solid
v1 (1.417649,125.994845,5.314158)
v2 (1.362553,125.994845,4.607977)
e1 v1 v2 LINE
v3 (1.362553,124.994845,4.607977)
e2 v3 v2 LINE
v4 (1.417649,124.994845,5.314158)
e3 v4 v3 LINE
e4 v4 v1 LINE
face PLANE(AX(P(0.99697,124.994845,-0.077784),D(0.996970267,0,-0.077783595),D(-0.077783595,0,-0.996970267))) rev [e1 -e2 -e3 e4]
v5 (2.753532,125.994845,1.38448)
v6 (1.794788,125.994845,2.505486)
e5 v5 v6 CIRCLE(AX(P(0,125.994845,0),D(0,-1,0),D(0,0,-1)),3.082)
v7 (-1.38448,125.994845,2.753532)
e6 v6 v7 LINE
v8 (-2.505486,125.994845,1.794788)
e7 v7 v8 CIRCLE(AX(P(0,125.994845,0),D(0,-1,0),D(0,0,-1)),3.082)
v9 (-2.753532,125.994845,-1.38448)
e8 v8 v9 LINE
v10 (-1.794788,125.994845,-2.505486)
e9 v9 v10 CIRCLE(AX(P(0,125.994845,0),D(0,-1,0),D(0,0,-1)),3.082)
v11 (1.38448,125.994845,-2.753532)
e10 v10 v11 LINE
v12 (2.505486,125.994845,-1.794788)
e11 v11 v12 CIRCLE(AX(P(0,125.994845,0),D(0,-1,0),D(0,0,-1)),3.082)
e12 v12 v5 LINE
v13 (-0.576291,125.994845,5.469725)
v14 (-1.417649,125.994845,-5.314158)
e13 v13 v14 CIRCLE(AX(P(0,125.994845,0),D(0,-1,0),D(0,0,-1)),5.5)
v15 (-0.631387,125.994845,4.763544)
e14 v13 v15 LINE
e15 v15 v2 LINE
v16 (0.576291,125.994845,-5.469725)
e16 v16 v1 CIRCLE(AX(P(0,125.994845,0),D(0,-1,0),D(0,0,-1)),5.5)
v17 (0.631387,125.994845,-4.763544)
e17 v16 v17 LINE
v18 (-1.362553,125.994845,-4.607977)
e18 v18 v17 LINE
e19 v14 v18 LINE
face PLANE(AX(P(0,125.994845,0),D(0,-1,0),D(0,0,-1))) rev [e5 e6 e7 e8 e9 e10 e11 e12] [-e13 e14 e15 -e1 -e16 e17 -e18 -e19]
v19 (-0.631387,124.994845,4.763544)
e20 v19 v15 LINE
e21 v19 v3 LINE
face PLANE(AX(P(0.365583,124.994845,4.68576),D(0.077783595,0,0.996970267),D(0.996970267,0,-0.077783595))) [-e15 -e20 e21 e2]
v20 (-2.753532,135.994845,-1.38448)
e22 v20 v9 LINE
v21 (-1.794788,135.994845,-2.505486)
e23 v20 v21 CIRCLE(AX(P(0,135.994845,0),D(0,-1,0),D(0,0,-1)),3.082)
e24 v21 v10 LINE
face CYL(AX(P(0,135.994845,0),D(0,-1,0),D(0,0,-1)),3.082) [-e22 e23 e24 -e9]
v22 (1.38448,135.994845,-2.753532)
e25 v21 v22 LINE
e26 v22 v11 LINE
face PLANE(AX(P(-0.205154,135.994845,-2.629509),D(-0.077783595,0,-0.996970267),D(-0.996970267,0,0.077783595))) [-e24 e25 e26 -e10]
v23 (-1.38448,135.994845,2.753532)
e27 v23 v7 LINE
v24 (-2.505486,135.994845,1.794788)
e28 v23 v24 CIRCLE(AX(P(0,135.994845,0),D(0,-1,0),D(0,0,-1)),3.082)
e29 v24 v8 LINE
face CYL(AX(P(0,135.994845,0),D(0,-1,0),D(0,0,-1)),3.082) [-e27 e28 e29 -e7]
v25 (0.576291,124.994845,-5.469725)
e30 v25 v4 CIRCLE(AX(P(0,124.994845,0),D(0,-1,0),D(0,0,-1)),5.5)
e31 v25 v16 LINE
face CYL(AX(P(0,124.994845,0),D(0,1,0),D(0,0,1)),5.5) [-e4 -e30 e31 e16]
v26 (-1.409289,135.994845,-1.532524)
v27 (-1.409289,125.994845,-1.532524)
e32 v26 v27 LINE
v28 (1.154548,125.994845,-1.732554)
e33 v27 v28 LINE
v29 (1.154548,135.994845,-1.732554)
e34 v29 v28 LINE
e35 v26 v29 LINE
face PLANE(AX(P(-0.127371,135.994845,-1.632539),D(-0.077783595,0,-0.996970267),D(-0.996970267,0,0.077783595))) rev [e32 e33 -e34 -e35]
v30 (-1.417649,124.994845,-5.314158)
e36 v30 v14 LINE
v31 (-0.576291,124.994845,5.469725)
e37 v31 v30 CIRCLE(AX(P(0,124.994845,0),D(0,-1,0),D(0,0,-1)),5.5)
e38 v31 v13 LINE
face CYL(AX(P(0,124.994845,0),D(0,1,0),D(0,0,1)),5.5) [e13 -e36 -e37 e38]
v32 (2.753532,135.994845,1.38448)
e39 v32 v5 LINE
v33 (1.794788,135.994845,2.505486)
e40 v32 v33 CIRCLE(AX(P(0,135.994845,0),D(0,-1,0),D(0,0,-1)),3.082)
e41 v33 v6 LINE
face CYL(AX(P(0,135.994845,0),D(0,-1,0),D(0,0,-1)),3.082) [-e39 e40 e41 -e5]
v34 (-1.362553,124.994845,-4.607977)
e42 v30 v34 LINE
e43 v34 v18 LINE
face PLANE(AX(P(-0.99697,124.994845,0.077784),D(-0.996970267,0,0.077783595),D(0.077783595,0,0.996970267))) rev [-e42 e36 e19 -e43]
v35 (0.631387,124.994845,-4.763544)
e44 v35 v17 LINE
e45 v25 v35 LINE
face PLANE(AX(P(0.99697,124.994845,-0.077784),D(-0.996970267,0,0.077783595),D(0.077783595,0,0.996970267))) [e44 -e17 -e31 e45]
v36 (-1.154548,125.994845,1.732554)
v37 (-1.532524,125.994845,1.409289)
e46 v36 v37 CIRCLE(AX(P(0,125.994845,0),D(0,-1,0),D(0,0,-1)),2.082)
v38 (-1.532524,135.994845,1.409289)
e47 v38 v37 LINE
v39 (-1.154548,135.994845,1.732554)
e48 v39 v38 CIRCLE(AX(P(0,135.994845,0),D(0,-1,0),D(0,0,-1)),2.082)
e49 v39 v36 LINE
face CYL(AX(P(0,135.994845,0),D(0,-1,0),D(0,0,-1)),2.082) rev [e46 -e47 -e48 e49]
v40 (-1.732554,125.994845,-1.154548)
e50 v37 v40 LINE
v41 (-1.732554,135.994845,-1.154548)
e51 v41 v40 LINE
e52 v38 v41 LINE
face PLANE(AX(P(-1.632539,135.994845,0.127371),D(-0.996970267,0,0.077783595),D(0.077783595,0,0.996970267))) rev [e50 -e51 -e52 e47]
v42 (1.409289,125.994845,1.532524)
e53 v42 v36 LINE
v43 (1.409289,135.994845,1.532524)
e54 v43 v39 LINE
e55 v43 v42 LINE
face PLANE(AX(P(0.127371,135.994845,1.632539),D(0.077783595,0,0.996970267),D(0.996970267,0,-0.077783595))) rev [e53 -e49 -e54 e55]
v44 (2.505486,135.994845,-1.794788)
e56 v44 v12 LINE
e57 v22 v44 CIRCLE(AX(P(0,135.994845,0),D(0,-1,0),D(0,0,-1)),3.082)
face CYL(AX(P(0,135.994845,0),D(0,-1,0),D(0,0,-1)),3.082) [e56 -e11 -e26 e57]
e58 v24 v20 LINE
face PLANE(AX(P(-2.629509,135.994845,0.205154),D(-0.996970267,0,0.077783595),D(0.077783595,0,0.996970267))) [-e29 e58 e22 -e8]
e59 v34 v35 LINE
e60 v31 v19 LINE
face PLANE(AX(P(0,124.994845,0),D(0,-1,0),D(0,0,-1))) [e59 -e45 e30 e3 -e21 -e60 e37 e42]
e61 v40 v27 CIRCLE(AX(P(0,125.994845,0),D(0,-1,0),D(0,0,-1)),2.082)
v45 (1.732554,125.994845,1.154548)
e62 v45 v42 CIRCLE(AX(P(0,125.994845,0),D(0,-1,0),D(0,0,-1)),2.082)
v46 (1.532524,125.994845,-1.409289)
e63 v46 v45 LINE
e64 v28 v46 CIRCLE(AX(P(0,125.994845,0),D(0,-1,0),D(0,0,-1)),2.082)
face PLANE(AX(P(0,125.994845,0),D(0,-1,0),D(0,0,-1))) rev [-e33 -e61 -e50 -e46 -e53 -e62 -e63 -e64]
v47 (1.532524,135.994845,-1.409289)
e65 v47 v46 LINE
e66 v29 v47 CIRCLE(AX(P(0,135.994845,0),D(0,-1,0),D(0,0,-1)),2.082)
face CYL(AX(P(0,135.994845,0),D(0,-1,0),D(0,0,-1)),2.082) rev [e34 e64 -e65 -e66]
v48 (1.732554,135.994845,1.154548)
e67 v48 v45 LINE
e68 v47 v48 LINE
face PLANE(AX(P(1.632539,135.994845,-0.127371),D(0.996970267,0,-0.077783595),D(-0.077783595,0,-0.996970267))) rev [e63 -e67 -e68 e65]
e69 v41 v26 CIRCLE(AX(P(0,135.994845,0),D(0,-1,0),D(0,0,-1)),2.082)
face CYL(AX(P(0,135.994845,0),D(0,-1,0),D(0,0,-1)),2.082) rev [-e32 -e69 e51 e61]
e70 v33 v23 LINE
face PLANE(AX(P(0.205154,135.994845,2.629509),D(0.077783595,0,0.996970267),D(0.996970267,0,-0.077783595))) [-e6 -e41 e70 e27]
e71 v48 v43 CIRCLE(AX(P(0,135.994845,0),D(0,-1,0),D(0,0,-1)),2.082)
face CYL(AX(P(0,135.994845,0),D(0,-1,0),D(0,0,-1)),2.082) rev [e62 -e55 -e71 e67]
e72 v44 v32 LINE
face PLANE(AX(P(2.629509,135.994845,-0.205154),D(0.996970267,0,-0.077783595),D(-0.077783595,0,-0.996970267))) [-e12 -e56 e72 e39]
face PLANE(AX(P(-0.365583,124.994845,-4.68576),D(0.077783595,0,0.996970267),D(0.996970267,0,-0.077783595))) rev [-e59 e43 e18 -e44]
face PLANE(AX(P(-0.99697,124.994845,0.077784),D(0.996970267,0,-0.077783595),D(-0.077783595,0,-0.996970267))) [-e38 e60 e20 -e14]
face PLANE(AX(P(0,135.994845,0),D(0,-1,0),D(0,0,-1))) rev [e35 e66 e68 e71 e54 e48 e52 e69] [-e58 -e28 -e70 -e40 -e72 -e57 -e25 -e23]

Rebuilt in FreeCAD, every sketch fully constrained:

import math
import FreeCAD as App
import Part
import Sketcher
from FreeCAD import Vector

doc = App.newDocument("Part")
body = doc.addObject("PartDesign::Body", "Body")

sketch1 = doc.addObject("Sketcher::SketchObject", "Sketch")
body.addObject(sketch1)
sketch1.AttachmentSupport = (doc.XZ_Plane, [""])
sketch1.MapMode = "FlatFace"
sketch1.AttachmentOffset = App.Placement(Vector(0, 0, -125.994845), App.Rotation())
sketch1.addGeometry(Part.LineSegment(Vector(-0.6, 4.8, 0), Vector(-0.6, 5.5, 0)), False)
sketch1.addGeometry(Part.ArcOfCircle(Part.Circle(Vector(0, 0, 0), Vector(0, 0, 1), 5.5), math.radians(96), math.radians(255)), False)
sketch1.addGeometry(Part.LineSegment(Vector(-1.4, -5.3, 0), Vector(-1.4, -4.6, 0)), False)
sketch1.addGeometry(Part.LineSegment(Vector(-1.4, -4.6, 0), Vector(0.6, -4.8, 0)), False)
sketch1.addGeometry(Part.LineSegment(Vector(0.6, -4.8, 0), Vector(0.6, -5.5, 0)), False)
sketch1.addGeometry(Part.ArcOfCircle(Part.Circle(Vector(0, 0, 0), Vector(0, 0, 1), 5.5), math.radians(-84), math.radians(0)), False)
sketch1.addGeometry(Part.ArcOfCircle(Part.Circle(Vector(0, 0, 0), Vector(0, 0, 1), 5.5), math.radians(0), math.radians(75)), False)
sketch1.addGeometry(Part.LineSegment(Vector(1.4, 5.3, 0), Vector(1.4, 4.6, 0)), False)
sketch1.addGeometry(Part.LineSegment(Vector(1.4, 4.6, 0), Vector(-0.6, 4.8, 0)), False)
sketch1.addConstraint(Sketcher.Constraint("Coincident", 0, 2, 1, 1))
sketch1.addConstraint(Sketcher.Constraint("Coincident", 1, 2, 2, 1))
sketch1.addConstraint(Sketcher.Constraint("Coincident", 2, 2, 3, 1))
sketch1.addConstraint(Sketcher.Constraint("Coincident", 3, 2, 4, 1))
sketch1.addConstraint(Sketcher.Constraint("Coincident", 4, 2, 5, 1))
sketch1.addConstraint(Sketcher.Constraint("Tangent", 5, 2, 6, 1))
sketch1.addConstraint(Sketcher.Constraint("Coincident", 6, 2, 7, 1))
sketch1.addConstraint(Sketcher.Constraint("Coincident", 7, 2, 8, 1))
sketch1.addConstraint(Sketcher.Constraint("Coincident", 8, 2, 0, 1))
sketch1.addConstraint(Sketcher.Constraint("Coincident", 1, 3, -1, 1))
sketch1.addConstraint(Sketcher.Constraint("Coincident", 5, 3, -1, 1))
sketch1.addConstraint(Sketcher.Constraint("Equal", 1, 5))
sketch1.addConstraint(Sketcher.Constraint("Equal", 5, 6))
sketch1.addConstraint(Sketcher.Constraint("Symmetric", 2, 2, 7, 2, -1, 1))
sketch1.addConstraint(Sketcher.Constraint("Symmetric", 3, 2, 8, 2, -1, 1))
sketch1.addConstraint(Sketcher.Constraint("Parallel", 0, 2))
sketch1.addConstraint(Sketcher.Constraint("Perpendicular", 2, 3))
sketch1.addConstraint(Sketcher.Constraint("Perpendicular", 3, 4))
sketch1.addConstraint(Sketcher.Constraint("Parallel", 4, 7))
sketch1.addConstraint(Sketcher.Constraint("Equal", 0, 2))
sketch1.addConstraint(Sketcher.Constraint("Radius", 1, 5.5))
sketch1.addConstraint(Sketcher.Constraint("Distance", 3, 2.0))
sketch1.addConstraint(Sketcher.Constraint("DistanceY", 2, 2, 0, 2, 10.077701))
sketch1.addConstraint(Sketcher.Constraint("DistanceY", 3, 2, 5, 2, 4.778898))
sketch1.addConstraint(Sketcher.Constraint("DistanceX", 0, 2, -1, 1, 0.576291))
pad1 = doc.addObject("PartDesign::Pad", "Pad")
body.addObject(pad1)
pad1.Profile = sketch1
pad1.Length = 1

sketch2 = doc.addObject("Sketcher::SketchObject", "Sketch001")
body.addObject(sketch2)
sketch2.AttachmentSupport = (doc.XZ_Plane, [""])
sketch2.MapMode = "FlatFace"
sketch2.AttachmentOffset = App.Placement(Vector(0, 0, -125.994845), App.Rotation())
sketch2.addGeometry(Part.LineSegment(Vector(-2.63, 0.21, 0), Vector(-2.75, -1.38, 0)), False)
sketch2.addGeometry(Part.ArcOfCircle(Part.Circle(Vector(0, 0, 0), Vector(0, 0, 1), 3.08), math.radians(-153), math.radians(-126)), False)
sketch2.addGeometry(Part.LineSegment(Vector(-1.79, -2.51, 0), Vector(1.38, -2.75, 0)), False)
sketch2.addGeometry(Part.ArcOfCircle(Part.Circle(Vector(0, 0, 0), Vector(0, 0, 1), 3.08), math.radians(-63), math.radians(-36)), False)
sketch2.addGeometry(Part.LineSegment(Vector(2.51, -1.79, 0), Vector(2.63, -0.21, 0)), False)
sketch2.addGeometry(Part.LineSegment(Vector(2.63, -0.21, 0), Vector(2.75, 1.38, 0)), False)
sketch2.addGeometry(Part.ArcOfCircle(Part.Circle(Vector(0, 0, 0), Vector(0, 0, 1), 3.08), math.radians(27), math.radians(54)), False)
sketch2.addGeometry(Part.LineSegment(Vector(1.79, 2.51, 0), Vector(-1.38, 2.75, 0)), False)
sketch2.addGeometry(Part.ArcOfCircle(Part.Circle(Vector(0, 0, 0), Vector(0, 0, 1), 3.08), math.radians(117), math.radians(144)), False)
sketch2.addGeometry(Part.LineSegment(Vector(-2.51, 1.79, 0), Vector(-2.63, 0.21, 0)), False)
sketch2.addGeometry(Part.ArcOfCircle(Part.Circle(Vector(0, 0, 0), Vector(0, 0, 1), 2.08), math.radians(-56.32), math.radians(-42.6)), False)
sketch2.addGeometry(Part.LineSegment(Vector(1.15, -1.73, 0), Vector(-1.41, -1.53, 0)), False)
sketch2.addGeometry(Part.ArcOfCircle(Part.Circle(Vector(0, 0, 0), Vector(0, 0, 1), 2.08), math.radians(-146.32), math.radians(-132.6)), False)
sketch2.addGeometry(Part.LineSegment(Vector(-1.73, -1.15, 0), Vector(-1.63, 0.13, 0)), False)
sketch2.addGeometry(Part.LineSegment(Vector(-1.63, 0.13, 0), Vector(-1.53, 1.41, 0)), False)
sketch2.addGeometry(Part.ArcOfCircle(Part.Circle(Vector(0, 0, 0), Vector(0, 0, 1), 2.08), math.radians(123.68), math.radians(137.4)), False)
sketch2.addGeometry(Part.LineSegment(Vector(-1.15, 1.73, 0), Vector(1.41, 1.53, 0)), False)
sketch2.addGeometry(Part.ArcOfCircle(Part.Circle(Vector(0, 0, 0), Vector(0, 0, 1), 2.08), math.radians(33.68), math.radians(47.4)), False)
sketch2.addGeometry(Part.LineSegment(Vector(1.73, 1.15, 0), Vector(1.63, -0.13, 0)), False)
sketch2.addGeometry(Part.LineSegment(Vector(1.63, -0.13, 0), Vector(1.53, -1.41, 0)), False)
sketch2.addConstraint(Sketcher.Constraint("Coincident", 0, 2, 1, 1))
sketch2.addConstraint(Sketcher.Constraint("Coincident", 1, 2, 2, 1))
sketch2.addConstraint(Sketcher.Constraint("Coincident", 2, 2, 3, 1))
sketch2.addConstraint(Sketcher.Constraint("Coincident", 3, 2, 4, 1))
sketch2.addConstraint(Sketcher.Constraint("Coincident", 4, 2, 5, 1))
sketch2.addConstraint(Sketcher.Constraint("Coincident", 5, 2, 6, 1))
sketch2.addConstraint(Sketcher.Constraint("Coincident", 6, 2, 7, 1))
sketch2.addConstraint(Sketcher.Constraint("Coincident", 7, 2, 8, 1))
sketch2.addConstraint(Sketcher.Constraint("Coincident", 8, 2, 9, 1))
sketch2.addConstraint(Sketcher.Constraint("Coincident", 9, 2, 0, 1))
sketch2.addConstraint(Sketcher.Constraint("Coincident", 10, 1, 11, 1))
sketch2.addConstraint(Sketcher.Constraint("Coincident", 11, 2, 12, 2))
sketch2.addConstraint(Sketcher.Constraint("Coincident", 12, 1, 13, 1))
sketch2.addConstraint(Sketcher.Constraint("Coincident", 13, 2, 14, 1))
sketch2.addConstraint(Sketcher.Constraint("Coincident", 14, 2, 15, 2))
sketch2.addConstraint(Sketcher.Constraint("Coincident", 15, 1, 16, 1))
sketch2.addConstraint(Sketcher.Constraint("Coincident", 16, 2, 17, 2))
sketch2.addConstraint(Sketcher.Constraint("Coincident", 17, 1, 18, 1))
sketch2.addConstraint(Sketcher.Constraint("Coincident", 18, 2, 19, 1))
sketch2.addConstraint(Sketcher.Constraint("Coincident", 19, 2, 10, 2))
sketch2.addConstraint(Sketcher.Constraint("Coincident", 1, 3, -1, 1))
sketch2.addConstraint(Sketcher.Constraint("Coincident", 3, 3, -1, 1))
sketch2.addConstraint(Sketcher.Constraint("Coincident", 6, 3, -1, 1))
sketch2.addConstraint(Sketcher.Constraint("Coincident", 8, 3, -1, 1))
sketch2.addConstraint(Sketcher.Constraint("Coincident", 10, 3, -1, 1))
sketch2.addConstraint(Sketcher.Constraint("Coincident", 12, 3, -1, 1))
sketch2.addConstraint(Sketcher.Constraint("Coincident", 15, 3, -1, 1))
sketch2.addConstraint(Sketcher.Constraint("Coincident", 17, 3, -1, 1))
sketch2.addConstraint(Sketcher.Constraint("Equal", 1, 3))
sketch2.addConstraint(Sketcher.Constraint("Equal", 3, 6))
sketch2.addConstraint(Sketcher.Constraint("Equal", 6, 8))
sketch2.addConstraint(Sketcher.Constraint("Equal", 10, 12))
sketch2.addConstraint(Sketcher.Constraint("Equal", 12, 15))
sketch2.addConstraint(Sketcher.Constraint("Equal", 15, 17))
sketch2.addConstraint(Sketcher.Constraint("Symmetric", 4, 2, 9, 2, -1, 1))
sketch2.addConstraint(Sketcher.Constraint("Symmetric", 13, 2, 18, 2, -1, 1))
sketch2.addConstraint(Sketcher.Constraint("Perpendicular", 0, 2))
sketch2.addConstraint(Sketcher.Constraint("Perpendicular", 2, 4))
sketch2.addConstraint(Sketcher.Constraint("Parallel", 4, 5))
sketch2.addConstraint(Sketcher.Constraint("Perpendicular", 5, 7))
sketch2.addConstraint(Sketcher.Constraint("Perpendicular", 7, 9))
sketch2.addConstraint(Sketcher.Constraint("Perpendicular", 9, 11))
sketch2.addConstraint(Sketcher.Constraint("Perpendicular", 11, 13))
sketch2.addConstraint(Sketcher.Constraint("Parallel", 13, 14))
sketch2.addConstraint(Sketcher.Constraint("Perpendicular", 14, 16))
sketch2.addConstraint(Sketcher.Constraint("Perpendicular", 16, 18))
sketch2.addConstraint(Sketcher.Constraint("Parallel", 18, 19))
sketch2.addConstraint(Sketcher.Constraint("Equal", 0, 4))
sketch2.addConstraint(Sketcher.Constraint("Equal", 2, 7))
sketch2.addConstraint(Sketcher.Constraint("Equal", 13, 14))
sketch2.addConstraint(Sketcher.Constraint("Equal", 11, 16))
sketch2.addConstraint(Sketcher.Constraint("Radius", 1, 3.082))
sketch2.addConstraint(Sketcher.Constraint("Radius", 10, 2.082))
sketch2.addConstraint(Sketcher.Constraint("DistanceX", 1, 2, 11, 2, 0.385499))
sketch2.addConstraint(Sketcher.Constraint("DistanceY", 12, 1, 9, 2, 1.359702))
sketch2.addConstraint(Sketcher.Constraint("DistanceY", 14, 2, 8, 2, 0.385499))
sketch2.addConstraint(Sketcher.Constraint("Distance", 2, 3.188929))
sketch2.addConstraint(Sketcher.Constraint("Distance", 11, 2.571628))
pad2 = doc.addObject("PartDesign::Pad", "Pad001")
body.addObject(pad2)
pad2.Profile = sketch2
pad2.Length = 10
pad2.Reversed = True

doc.recompute()
